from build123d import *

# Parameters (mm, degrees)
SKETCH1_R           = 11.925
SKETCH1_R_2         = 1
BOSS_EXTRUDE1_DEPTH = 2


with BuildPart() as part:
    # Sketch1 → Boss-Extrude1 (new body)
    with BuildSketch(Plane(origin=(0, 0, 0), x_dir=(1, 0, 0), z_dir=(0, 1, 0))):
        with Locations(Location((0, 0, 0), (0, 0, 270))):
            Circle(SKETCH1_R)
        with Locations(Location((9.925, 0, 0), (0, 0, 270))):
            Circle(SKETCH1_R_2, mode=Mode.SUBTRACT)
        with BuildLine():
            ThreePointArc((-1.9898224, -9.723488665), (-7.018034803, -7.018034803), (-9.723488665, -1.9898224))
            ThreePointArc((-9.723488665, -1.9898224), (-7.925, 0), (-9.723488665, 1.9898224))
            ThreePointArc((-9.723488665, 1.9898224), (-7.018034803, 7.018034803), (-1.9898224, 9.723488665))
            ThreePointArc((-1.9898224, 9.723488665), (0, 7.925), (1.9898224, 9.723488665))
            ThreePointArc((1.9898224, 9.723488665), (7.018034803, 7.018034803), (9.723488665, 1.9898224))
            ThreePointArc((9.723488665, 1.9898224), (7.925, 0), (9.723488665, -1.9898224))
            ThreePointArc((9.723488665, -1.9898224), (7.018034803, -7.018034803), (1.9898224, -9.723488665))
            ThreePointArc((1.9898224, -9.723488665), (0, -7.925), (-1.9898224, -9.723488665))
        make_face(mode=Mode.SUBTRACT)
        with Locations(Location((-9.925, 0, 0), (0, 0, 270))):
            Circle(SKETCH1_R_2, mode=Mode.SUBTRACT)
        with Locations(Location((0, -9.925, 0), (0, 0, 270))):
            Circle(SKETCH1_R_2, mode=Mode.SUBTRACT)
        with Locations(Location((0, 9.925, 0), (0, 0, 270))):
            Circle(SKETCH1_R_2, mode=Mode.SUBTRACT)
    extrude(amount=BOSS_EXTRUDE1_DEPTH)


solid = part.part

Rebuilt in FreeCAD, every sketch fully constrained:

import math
import FreeCAD as App
import Part
import Sketcher

doc = App.newDocument("Part")
body = doc.addObject("PartDesign::Body", "Body")

sketch1 = body.newObject("Sketcher::SketchObject", "Sketch")
sketch1.AttachmentSupport = (doc.getObject("XZ_Plane"), [""])
sketch1.MapMode = "FlatFace"
sketch1.addGeometry(Part.Circle(App.Vector(0, 0, 0), App.Vector(0, 0, 1), 11.9), False)
sketch1.addGeometry(Part.Circle(App.Vector(0, -9.9, 0), App.Vector(0, 0, 1), 1), False)
sketch1.addGeometry(Part.Circle(App.Vector(-9.9, 0, 0), App.Vector(0, 0, 1), 1), False)
sketch1.addGeometry(Part.Circle(App.Vector(9.9, 0, 0), App.Vector(0, 0, 1), 1), False)
sketch1.addGeometry(Part.ArcOfCircle(Part.Circle(App.Vector(0, 9.9, 0), App.Vector(0, 0, 1), 2), math.radians(-174), math.radians(-6)), False)
sketch1.addGeometry(Part.ArcOfCircle(Part.Circle(App.Vector(0, 0, 0), App.Vector(0, 0, 1), 9.9), math.radians(102), math.radians(168)), False)
sketch1.addGeometry(Part.ArcOfCircle(Part.Circle(App.Vector(-9.9, 0, 0), App.Vector(0, 0, 1), 2), math.radians(-84), math.radians(84)), False)
sketch1.addGeometry(Part.ArcOfCircle(Part.Circle(App.Vector(0, 0, 0), App.Vector(0, 0, 1), 9.9), math.radians(-168), math.radians(-102)), False)
sketch1.addGeometry(Part.ArcOfCircle(Part.Circle(App.Vector(0, -9.9, 0), App.Vector(0, 0, 1), 2), math.radians(6), math.radians(174)), False)
sketch1.addGeometry(Part.ArcOfCircle(Part.Circle(App.Vector(0, 0, 0), App.Vector(0, 0, 1), 9.9), math.radians(-78), math.radians(-12)), False)
sketch1.addGeometry(Part.ArcOfCircle(Part.Circle(App.Vector(9.9, 0, 0), App.Vector(0, 0, 1), 2), math.radians(96), math.radians(264)), False)
sketch1.addGeometry(Part.ArcOfCircle(Part.Circle(App.Vector(0, 0, 0), App.Vector(0, 0, 1), 9.9), math.radians(12), math.radians(78)), False)
sketch1.addGeometry(Part.Circle(App.Vector(0, 9.9, 0), App.Vector(0, 0, 1), 1), False)
sketch1.addConstraint(Sketcher.Constraint("Coincident", 4, 1, 5, 1))
sketch1.addConstraint(Sketcher.Constraint("Coincident", 5, 2, 6, 2))
sketch1.addConstraint(Sketcher.Constraint("Coincident", 6, 1, 7, 1))
sketch1.addConstraint(Sketcher.Constraint("Coincident", 7, 2, 8, 2))
sketch1.addConstraint(Sketcher.Constraint("Coincident", 8, 1, 9, 1))
sketch1.addConstraint(Sketcher.Constraint("Coincident", 9, 2, 10, 2))
sketch1.addConstraint(Sketcher.Constraint("Coincident", 10, 1, 11, 1))
sketch1.addConstraint(Sketcher.Constraint("Coincident", 11, 2, 4, 2))
sketch1.addConstraint(Sketcher.Constraint("Coincident", 0, 3, -1, 1))
sketch1.addConstraint(Sketcher.Constraint("Coincident", 5, 3, -1, 1))
sketch1.addConstraint(Sketcher.Constraint("Coincident", 7, 3, -1, 1))
sketch1.addConstraint(Sketcher.Constraint("Coincident", 9, 3, -1, 1))
sketch1.addConstraint(Sketcher.Constraint("Coincident", 11, 3, -1, 1))
sketch1.addConstraint(Sketcher.Constraint("Coincident", 6, 3, 2, 3))
sketch1.addConstraint(Sketcher.Constraint("Coincident", 8, 3, 1, 3))
sketch1.addConstraint(Sketcher.Constraint("Coincident", 10, 3, 3, 3))
sketch1.addConstraint(Sketcher.Constraint("Coincident", 12, 3, 4, 3))
sketch1.addConstraint(Sketcher.Constraint("Equal", 1, 2))
sketch1.addConstraint(Sketcher.Constraint("Equal", 2, 3))
sketch1.addConstraint(Sketcher.Constraint("Equal", 4, 6))
sketch1.addConstraint(Sketcher.Constraint("Equal", 5, 7))
sketch1.addConstraint(Sketcher.Constraint("Equal", 6, 8))
sketch1.addConstraint(Sketcher.Constraint("Equal", 7, 9))
sketch1.addConstraint(Sketcher.Constraint("Equal", 8, 10))
sketch1.addConstraint(Sketcher.Constraint("Equal", 9, 11))
sketch1.addConstraint(Sketcher.Constraint("Equal", 3, 12))
sketch1.addConstraint(Sketcher.Constraint("Symmetric", 2, 3, 3, 3, -1, 1))
sketch1.addConstraint(Sketcher.Constraint("Symmetric", 1, 3, 4, 3, -1, 1))
sketch1.addConstraint(Sketcher.Constraint("PointOnObject", 1, 3, -2))
sketch1.addConstraint(Sketcher.Constraint("PointOnObject", 2, 3, -1))
sketch1.addConstraint(Sketcher.Constraint("Diameter", 1, 2.0))
sketch1.addConstraint(Sketcher.Constraint("Radius", 4, 2.0))
sketch1.addConstraint(Sketcher.Constraint("Diameter", 0, 23.85))
sketch1.addConstraint(Sketcher.Constraint("Radius", 5, 9.925))
sketch1.addConstraint(Sketcher.Constraint("DistanceX", 2, 3, 3, 3, 19.85))
sketch1.addConstraint(Sketcher.Constraint("DistanceY", 1, 3, 4, 3, 19.85))
pad1 = body.newObject("PartDesign::Pad", "Pad")
pad1.Profile = sketch1
pad1.Length = 2
pad1.Reversed = True

doc.recompute()
